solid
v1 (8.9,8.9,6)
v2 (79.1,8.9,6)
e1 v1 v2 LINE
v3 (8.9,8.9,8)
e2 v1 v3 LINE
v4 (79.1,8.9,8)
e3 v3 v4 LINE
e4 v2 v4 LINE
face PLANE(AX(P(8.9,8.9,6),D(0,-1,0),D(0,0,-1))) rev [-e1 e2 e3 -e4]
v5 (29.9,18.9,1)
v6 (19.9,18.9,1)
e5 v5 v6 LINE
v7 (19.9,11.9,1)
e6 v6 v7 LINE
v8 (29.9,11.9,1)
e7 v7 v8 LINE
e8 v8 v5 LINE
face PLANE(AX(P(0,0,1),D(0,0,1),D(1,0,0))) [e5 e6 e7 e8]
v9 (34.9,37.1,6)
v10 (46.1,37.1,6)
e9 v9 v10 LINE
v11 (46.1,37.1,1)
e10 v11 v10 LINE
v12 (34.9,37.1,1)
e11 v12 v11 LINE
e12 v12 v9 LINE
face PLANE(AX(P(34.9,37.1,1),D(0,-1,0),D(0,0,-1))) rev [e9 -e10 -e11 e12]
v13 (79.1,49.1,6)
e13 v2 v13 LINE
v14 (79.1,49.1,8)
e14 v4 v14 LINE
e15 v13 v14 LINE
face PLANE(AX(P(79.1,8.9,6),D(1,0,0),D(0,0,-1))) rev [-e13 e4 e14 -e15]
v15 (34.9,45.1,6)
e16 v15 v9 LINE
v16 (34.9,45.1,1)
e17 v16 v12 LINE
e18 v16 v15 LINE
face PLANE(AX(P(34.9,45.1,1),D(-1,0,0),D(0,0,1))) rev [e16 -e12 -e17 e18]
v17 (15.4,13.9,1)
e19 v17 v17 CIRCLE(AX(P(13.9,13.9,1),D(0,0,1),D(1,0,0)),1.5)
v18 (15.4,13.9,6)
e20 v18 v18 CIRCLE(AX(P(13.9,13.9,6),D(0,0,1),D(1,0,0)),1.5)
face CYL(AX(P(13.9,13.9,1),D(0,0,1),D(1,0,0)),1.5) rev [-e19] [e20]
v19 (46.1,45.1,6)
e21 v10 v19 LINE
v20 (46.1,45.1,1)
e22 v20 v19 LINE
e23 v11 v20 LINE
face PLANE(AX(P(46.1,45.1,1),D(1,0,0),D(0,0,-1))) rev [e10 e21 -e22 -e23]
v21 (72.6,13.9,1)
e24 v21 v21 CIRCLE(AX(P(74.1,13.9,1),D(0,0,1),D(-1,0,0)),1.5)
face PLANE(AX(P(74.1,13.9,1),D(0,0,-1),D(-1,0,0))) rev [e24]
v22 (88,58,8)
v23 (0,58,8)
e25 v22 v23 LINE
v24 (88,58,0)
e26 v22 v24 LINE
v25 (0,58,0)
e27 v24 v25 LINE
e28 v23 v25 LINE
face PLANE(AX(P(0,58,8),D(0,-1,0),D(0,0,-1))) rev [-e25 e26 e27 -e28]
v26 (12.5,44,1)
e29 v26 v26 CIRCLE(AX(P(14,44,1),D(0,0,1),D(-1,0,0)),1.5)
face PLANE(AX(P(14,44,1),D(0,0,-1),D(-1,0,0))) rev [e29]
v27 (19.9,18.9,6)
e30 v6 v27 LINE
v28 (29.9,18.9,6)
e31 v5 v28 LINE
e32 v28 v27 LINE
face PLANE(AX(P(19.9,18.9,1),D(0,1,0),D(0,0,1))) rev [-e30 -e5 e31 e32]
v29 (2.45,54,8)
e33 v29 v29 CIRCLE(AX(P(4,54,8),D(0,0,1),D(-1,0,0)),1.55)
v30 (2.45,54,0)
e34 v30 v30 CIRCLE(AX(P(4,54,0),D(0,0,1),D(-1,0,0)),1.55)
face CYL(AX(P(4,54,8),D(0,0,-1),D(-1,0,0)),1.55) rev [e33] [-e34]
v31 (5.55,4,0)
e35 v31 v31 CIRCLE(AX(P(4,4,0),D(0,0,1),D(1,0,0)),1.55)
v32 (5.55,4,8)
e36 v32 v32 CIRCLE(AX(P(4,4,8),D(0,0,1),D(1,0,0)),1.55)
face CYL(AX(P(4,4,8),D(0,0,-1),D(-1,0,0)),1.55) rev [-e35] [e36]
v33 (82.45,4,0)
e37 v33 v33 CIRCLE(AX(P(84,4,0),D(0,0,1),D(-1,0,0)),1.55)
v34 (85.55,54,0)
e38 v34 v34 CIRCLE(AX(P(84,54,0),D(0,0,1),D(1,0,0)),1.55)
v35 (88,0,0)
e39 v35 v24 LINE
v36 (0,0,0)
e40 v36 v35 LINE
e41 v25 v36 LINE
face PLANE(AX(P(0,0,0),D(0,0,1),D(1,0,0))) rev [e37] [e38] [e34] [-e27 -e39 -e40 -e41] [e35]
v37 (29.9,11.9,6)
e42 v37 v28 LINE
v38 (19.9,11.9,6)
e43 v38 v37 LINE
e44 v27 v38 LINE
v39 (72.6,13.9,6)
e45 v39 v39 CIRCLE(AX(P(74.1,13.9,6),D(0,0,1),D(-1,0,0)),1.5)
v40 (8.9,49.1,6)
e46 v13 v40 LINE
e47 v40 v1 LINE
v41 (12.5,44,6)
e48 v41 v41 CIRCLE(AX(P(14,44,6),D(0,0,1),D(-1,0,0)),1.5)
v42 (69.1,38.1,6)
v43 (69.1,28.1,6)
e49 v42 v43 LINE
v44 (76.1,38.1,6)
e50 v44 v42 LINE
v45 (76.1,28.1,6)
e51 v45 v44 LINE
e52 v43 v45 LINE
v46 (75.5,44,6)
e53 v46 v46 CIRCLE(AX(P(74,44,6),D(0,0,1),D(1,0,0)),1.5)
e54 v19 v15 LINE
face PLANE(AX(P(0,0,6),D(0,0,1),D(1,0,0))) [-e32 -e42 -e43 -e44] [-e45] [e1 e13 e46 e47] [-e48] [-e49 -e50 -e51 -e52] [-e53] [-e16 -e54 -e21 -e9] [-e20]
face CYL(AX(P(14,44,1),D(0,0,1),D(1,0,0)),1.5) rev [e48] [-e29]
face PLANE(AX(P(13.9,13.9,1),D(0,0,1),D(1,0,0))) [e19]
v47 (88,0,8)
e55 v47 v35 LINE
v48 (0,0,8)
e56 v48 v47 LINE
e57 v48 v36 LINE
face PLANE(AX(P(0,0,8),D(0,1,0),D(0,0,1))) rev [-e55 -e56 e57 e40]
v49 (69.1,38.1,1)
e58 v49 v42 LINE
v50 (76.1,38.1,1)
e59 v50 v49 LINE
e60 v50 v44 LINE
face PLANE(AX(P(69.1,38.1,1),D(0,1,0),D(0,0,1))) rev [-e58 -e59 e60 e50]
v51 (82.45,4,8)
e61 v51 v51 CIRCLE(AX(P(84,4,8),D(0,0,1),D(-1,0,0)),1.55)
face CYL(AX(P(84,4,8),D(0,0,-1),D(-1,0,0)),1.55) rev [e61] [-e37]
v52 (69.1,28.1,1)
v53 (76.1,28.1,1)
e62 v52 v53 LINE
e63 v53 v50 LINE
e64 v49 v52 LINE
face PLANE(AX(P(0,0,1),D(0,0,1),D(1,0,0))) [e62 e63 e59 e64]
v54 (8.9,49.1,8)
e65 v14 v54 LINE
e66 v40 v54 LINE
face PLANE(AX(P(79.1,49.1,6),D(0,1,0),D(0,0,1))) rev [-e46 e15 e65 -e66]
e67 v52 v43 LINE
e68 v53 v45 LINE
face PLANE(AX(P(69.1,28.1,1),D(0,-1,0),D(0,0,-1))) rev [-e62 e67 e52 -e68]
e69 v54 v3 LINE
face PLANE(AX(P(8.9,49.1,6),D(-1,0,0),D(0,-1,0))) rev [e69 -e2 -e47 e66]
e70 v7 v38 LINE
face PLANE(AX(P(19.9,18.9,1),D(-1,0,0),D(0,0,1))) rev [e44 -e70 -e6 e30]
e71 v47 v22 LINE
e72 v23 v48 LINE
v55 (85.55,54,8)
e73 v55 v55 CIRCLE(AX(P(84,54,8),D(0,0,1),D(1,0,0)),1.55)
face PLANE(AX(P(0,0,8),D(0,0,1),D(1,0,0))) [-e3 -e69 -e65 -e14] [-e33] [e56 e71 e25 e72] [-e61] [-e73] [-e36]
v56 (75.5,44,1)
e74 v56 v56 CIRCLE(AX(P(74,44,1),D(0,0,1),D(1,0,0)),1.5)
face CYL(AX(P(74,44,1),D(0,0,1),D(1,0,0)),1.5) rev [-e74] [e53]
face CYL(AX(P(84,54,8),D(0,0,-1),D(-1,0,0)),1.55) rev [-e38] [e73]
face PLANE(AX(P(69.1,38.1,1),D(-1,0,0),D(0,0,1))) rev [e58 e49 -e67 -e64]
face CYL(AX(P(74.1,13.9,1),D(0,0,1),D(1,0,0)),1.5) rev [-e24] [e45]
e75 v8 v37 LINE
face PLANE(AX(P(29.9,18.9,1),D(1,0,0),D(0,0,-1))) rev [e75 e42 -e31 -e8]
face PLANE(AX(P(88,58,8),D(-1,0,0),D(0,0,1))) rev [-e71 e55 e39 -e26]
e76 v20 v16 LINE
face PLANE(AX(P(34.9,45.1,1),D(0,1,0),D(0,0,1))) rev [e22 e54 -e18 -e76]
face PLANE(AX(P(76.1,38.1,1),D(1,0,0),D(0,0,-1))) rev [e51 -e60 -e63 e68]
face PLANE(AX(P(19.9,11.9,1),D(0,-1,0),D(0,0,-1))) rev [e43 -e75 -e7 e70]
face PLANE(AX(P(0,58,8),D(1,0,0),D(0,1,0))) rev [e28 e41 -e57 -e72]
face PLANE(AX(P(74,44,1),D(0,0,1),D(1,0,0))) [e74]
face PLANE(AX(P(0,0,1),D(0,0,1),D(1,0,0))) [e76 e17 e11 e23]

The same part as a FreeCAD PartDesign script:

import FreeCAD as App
import Part
import Sketcher

V = App.Vector
Q = App.Units.Quantity

doc = App.newDocument("Part")
params = doc.addObject("Spreadsheet::Sheet", "Params")
for row, (alias, value) in enumerate([
    ("sketch1_diameter", "3.1 mm"),
    ("sketch1_width", "88 mm"),
    ("sketch1_height", "58 mm"),
    ("pad1_length", "8 mm"),
    ("sketch2_width", "70.2 mm"),
    ("sketch2_height", "40.2 mm"),
    ("pocket1_length", "2 mm"),
    ("sketch3_diameter", "3 mm"),
    ("sketch3_width", "10 mm"),
    ("sketch3_width2", "7 mm"),
    ("sketch3_height", "8 mm"),
    ("sketch3_width3", "11.2 mm"),
    ("pocket2_length", "5 mm"),
], start=1):
    params.set(f"A{row}", alias)
    params.set(f"B{row}", "=" + value)
    params.setAlias(f"B{row}", alias)

body = doc.addObject("PartDesign::Body", "Body")

sketch1 = body.newObject("Sketcher::SketchObject", "Sketch")
sketch1.AttachmentSupport = (doc.getObject("XY_Plane"), [""])
sketch1.MapMode = "FlatFace"
sketch1.addGeometry([
    Part.LineSegment(V(0, 58, 0), V(0, 0, 0)),
    Part.LineSegment(V(0, 0, 0), V(88, 0, 0)),
    Part.LineSegment(V(88, 0, 0), V(88, 58, 0)),
    Part.LineSegment(V(88, 58, 0), V(0, 58, 0)),
    Part.Circle(V(4, 4, 0), V(0, 0, 1), 1.6),
    Part.Circle(V(84, 4, 0), V(0, 0, 1), 1.6),
    Part.Circle(V(4, 54, 0), V(0, 0, 1), 1.6),
    Part.Circle(V(84, 54, 0), V(0, 0, 1), 1.6),
], False)
sketch1.addConstraint([
    Sketcher.Constraint("Coincident", 0, 2, 1, 1),
    Sketcher.Constraint("Coincident", 1, 2, 2, 1),
    Sketcher.Constraint("Coincident", 2, 2, 3, 1),
    Sketcher.Constraint("Coincident", 3, 2, 0, 1),
    Sketcher.Constraint("Vertical", 0),
    Sketcher.Constraint("Horizontal", 1),
    Sketcher.Constraint("Vertical", 2),
    Sketcher.Constraint("Horizontal", 3),
    Sketcher.Constraint("Coincident", 0, 2, -1, 1),
    Sketcher.Constraint("Equal", 4, 5),
    Sketcher.Constraint("Equal", 5, 6),
    Sketcher.Constraint("Equal", 6, 7),
    Sketcher.Constraint("Horizontal", 4, 3, 5, 3),
    Sketcher.Constraint("Horizontal", 6, 3, 7, 3),
    Sketcher.Constraint("Vertical", 4, 3, 6, 3),
    Sketcher.Constraint("Vertical", 5, 3, 7, 3),
    Sketcher.Constraint("Diameter", 4, Q("3.1 mm")),
    Sketcher.Constraint("DistanceX", 1, 1, 1, 2, Q("88 mm")),
    Sketcher.Constraint("DistanceY", 0, 2, 0, 1, Q("58 mm")),
    Sketcher.Constraint("DistanceX", -1, 1, 4, 3, Q("4 mm")),
    Sketcher.Constraint("DistanceY", -1, 1, 4, 3, Q("4 mm")),
    Sketcher.Constraint("DistanceX", -1, 1, 5, 3, Q("84 mm")),
    Sketcher.Constraint("DistanceY", -1, 1, 6, 3, Q("54 mm")),
])
sketch1.setExpression("Constraints[16]", "Params.sketch1_diameter")
sketch1.setExpression("Constraints[17]", "Params.sketch1_width")
sketch1.setExpression("Constraints[18]", "Params.sketch1_height")
pad1 = body.newObject("PartDesign::Pad", "Pad")
pad1.Profile = sketch1
pad1.setExpression("Length", "Params.pad1_length")

sketch2 = body.newObject("Sketcher::SketchObject", "Sketch001")
sketch2.AttachmentSupport = (doc.getObject("XY_Plane"), [""])
sketch2.MapMode = "FlatFace"
sketch2.AttachmentOffset = App.Placement(V(0, 0, 8), App.Rotation())
sketch2.addGeometry([
    Part.LineSegment(V(9, 49, 0), V(9, 9, 0)),
    Part.LineSegment(V(9, 9, 0), V(79, 9, 0)),
    Part.LineSegment(V(79, 9, 0), V(79, 49, 0)),
    Part.LineSegment(V(79, 49, 0), V(9, 49, 0)),
], False)
sketch2.addConstraint([
    Sketcher.Constraint("Coincident", 0, 2, 1, 1),
    Sketcher.Constraint("Coincident", 1, 2, 2, 1),
    Sketcher.Constraint("Coincident", 2, 2, 3, 1),
    Sketcher.Constraint("Coincident", 3, 2, 0, 1),
    Sketcher.Constraint("Vertical", 0),
    Sketcher.Constraint("Horizontal", 1),
    Sketcher.Constraint("Vertical", 2),
    Sketcher.Constraint("Horizontal", 3),
    Sketcher.Constraint("DistanceX", 1, 1, 1, 2, Q("70.2 mm")),
    Sketcher.Constraint("DistanceY", 0, 2, 0, 1, Q("40.2 mm")),
    Sketcher.Constraint("DistanceX", -1, 1, 0, 2, Q("8.9 mm")),
    Sketcher.Constraint("DistanceY", -1, 1, 0, 2, Q("8.9 mm")),
])
sketch2.setExpression("Constraints[8]", "Params.sketch2_width")
sketch2.setExpression("Constraints[9]", "Params.sketch2_height")
pocket1 = body.newObject("PartDesign::Pocket", "Pocket")
pocket1.Profile = sketch2
pocket1.setExpression("Length", "Params.pocket1_length")

sketch3 = body.newObject("Sketcher::SketchObject", "Sketch002")
sketch3.AttachmentSupport = (doc.getObject("XY_Plane"), [""])
sketch3.MapMode = "FlatFace"
sketch3.AttachmentOffset = App.Placement(V(0, 0, 6), App.Rotation())
sketch3.addGeometry([
    Part.Circle(V(13.9, 13.9, 0), V(0, 0, 1), 1.5),
    Part.Circle(V(14, 44, 0), V(0, 0, 1), 1.5),
    Part.Circle(V(74.1, 13.9, 0), V(0, 0, 1), 1.5),
    Part.Circle(V(74, 44, 0), V(0, 0, 1), 1.5),
    Part.LineSegment(V(19.9, 18.9, 0), V(19.9, 11.9, 0)),
    Part.LineSegment(V(19.9, 11.9, 0), V(29.9, 11.9, 0)),
    Part.LineSegment(V(29.9, 11.9, 0), V(29.9, 18.9, 0)),
    Part.LineSegment(V(29.9, 18.9, 0), V(19.9, 18.9, 0)),
    Part.LineSegment(V(69.1, 38.1, 0), V(69.1, 28.1, 0)),
    Part.LineSegment(V(69.1, 28.1, 0), V(76.1, 28.1, 0)),
    Part.LineSegment(V(76.1, 28.1, 0), V(76.1, 38.1, 0)),
    Part.LineSegment(V(76.1, 38.1, 0), V(69.1, 38.1, 0)),
    Part.LineSegment(V(34.9, 45.1, 0), V(34.9, 37.1, 0)),
    Part.LineSegment(V(34.9, 37.1, 0), V(46.1, 37.1, 0)),
    Part.LineSegment(V(46.1, 37.1, 0), V(46.1, 45.1, 0)),
    Part.LineSegment(V(46.1, 45.1, 0), V(34.9, 45.1, 0)),
], False)
sketch3.addConstraint([
    Sketcher.Constraint("Coincident", 4, 2, 5, 1),
    Sketcher.Constraint("Coincident", 5, 2, 6, 1),
    Sketcher.Constraint("Coincident", 6, 2, 7, 1),
    Sketcher.Constraint("Coincident", 7, 2, 4, 1),
    Sketcher.Constraint("Coincident", 8, 2, 9, 1),
    Sketcher.Constraint("Coincident", 9, 2, 10, 1),
    Sketcher.Constraint("Coincident", 10, 2, 11, 1),
    Sketcher.Constraint("Coincident", 11, 2, 8, 1),
    Sketcher.Constraint("Coincident", 12, 2, 13, 1),
    Sketcher.Constraint("Coincident", 13, 2, 14, 1),
    Sketcher.Constraint("Coincident", 14, 2, 15, 1),
    Sketcher.Constraint("Coincident", 15, 2, 12, 1),
    Sketcher.Constraint("Vertical", 4),
    Sketcher.Constraint("Horizontal", 5),
    Sketcher.Constraint("Vertical", 6),
    Sketcher.Constraint("Horizontal", 7),
    Sketcher.Constraint("Vertical", 8),
    Sketcher.Constraint("Horizontal", 9),
    Sketcher.Constraint("Vertical", 10),
    Sketcher.Constraint("Horizontal", 11),
    Sketcher.Constraint("Vertical", 12),
    Sketcher.Constraint("Horizontal", 13),
    Sketcher.Constraint("Vertical", 14),
    Sketcher.Constraint("Horizontal", 15),
    Sketcher.Constraint("Equal", 0, 1),
    Sketcher.Constraint("Equal", 1, 2),
    Sketcher.Constraint("Equal", 2, 3),
    Sketcher.Constraint("Horizontal", 0, 3, 2, 3),
    Sketcher.Constraint("Horizontal", 1, 3, 3, 3),
    Sketcher.Constraint("Equal", 11, 4),
    Sketcher.Constraint("Equal", 7, 8),
    Sketcher.Constraint("Diameter", 0, Q("3 mm")),
    Sketcher.Constraint("DistanceX", 5, 1, 5, 2, Q("10 mm")),
    Sketcher.Constraint("DistanceX", 9, 1, 9, 2, Q("7 mm")),
    Sketcher.Constraint("DistanceY", 12, 2, 12, 1, Q("8 mm")),
    Sketcher.Constraint("DistanceX", 13, 1, 13, 2, Q("11.2 mm")),
    Sketcher.Constraint("DistanceX", -1, 1, 1, 3, Q("14 mm")),
    Sketcher.Constraint("DistanceY", -1, 1, 1, 3, Q("44 mm")),
    Sketcher.Constraint("DistanceX", -1, 1, 3, 3, Q("74 mm")),
    Sketcher.Constraint("DistanceX", 0, 3, 4, 2, Q("6 mm")),
    Sketcher.Constraint("DistanceY", 4, 2, 0, 3, Q("2 mm")),
    Sketcher.Constraint("DistanceX", 8, 2, 2, 3, Q("5 mm")),
    Sketcher.Constraint("DistanceX", 6, 2, 12, 2, Q("5 mm")),
    Sketcher.Constraint("DistanceX", 13, 2, 11, 2, Q("23 mm")),
    Sketcher.Constraint("DistanceY", 13, 2, 11, 2, Q("1 mm")),
    Sketcher.Constraint("DistanceX", -1, 1, 0, 3, Q("13.9 mm")),
    Sketcher.Constraint("DistanceY", -1, 1, 0, 3, Q("13.9 mm")),
    Sketcher.Constraint("DistanceY", -1, 1, 8, 2, Q("28.1 mm")),
])
sketch3.setExpression("Constraints[31]", "Params.sketch3_diameter")
sketch3.setExpression("Constraints[32]", "Params.sketch3_width")
sketch3.setExpression("Constraints[33]", "Params.sketch3_width2")
sketch3.setExpression("Constraints[34]", "Params.sketch3_height")
sketch3.setExpression("Constraints[35]", "Params.sketch3_width3")
pocket2 = body.newObject("PartDesign::Pocket", "Pocket001")
pocket2.Profile = sketch3
pocket2.setExpression("Length", "Params.pocket2_length")

doc.recompute()
